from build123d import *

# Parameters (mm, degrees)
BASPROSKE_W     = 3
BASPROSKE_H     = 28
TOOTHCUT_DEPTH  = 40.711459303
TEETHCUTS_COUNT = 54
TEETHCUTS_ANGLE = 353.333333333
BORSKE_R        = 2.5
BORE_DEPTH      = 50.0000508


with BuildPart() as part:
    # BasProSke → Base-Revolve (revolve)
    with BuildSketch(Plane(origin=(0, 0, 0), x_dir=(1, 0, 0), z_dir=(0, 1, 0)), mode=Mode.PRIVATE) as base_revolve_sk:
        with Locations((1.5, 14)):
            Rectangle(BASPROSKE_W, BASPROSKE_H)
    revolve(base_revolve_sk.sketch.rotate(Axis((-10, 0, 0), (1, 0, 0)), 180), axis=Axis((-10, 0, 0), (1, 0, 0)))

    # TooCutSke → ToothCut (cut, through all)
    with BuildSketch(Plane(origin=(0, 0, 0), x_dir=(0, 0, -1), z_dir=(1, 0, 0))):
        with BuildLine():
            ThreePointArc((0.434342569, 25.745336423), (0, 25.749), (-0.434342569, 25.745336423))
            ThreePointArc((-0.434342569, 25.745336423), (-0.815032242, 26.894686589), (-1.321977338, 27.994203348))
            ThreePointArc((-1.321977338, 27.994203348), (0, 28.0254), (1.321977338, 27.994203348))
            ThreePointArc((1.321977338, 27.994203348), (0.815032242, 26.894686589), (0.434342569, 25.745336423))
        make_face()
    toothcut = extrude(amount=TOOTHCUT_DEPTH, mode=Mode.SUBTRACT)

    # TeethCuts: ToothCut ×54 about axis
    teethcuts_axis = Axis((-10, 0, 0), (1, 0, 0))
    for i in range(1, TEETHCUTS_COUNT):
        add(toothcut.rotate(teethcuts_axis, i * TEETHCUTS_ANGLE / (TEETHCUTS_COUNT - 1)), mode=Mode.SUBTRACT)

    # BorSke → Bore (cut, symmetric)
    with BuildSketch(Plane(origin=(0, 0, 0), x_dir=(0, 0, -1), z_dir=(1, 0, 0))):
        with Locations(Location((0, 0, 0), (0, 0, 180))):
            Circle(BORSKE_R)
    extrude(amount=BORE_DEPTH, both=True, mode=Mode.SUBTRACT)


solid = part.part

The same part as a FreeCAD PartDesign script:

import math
import FreeCAD as App
import Part
import Sketcher

V = App.Vector
Q = App.Units.Quantity

doc = App.newDocument("Part")
body = doc.addObject("PartDesign::Body", "Body")

# Sketch on XZ plane
sketch1 = body.newObject("Sketcher::SketchObject", "Sketch")
sketch1.AttachmentSupport = (doc.getObject("XZ_Plane"), [""])
sketch1.MapMode = "FlatFace"
sketch1.addGeometry([
    Part.LineSegment(V(0, -28, 0), V(0, 0, 0)),
    Part.LineSegment(V(0, 0, 0), V(3, 0, 0)),
    Part.LineSegment(V(3, 0, 0), V(3, -28, 0)),
    Part.LineSegment(V(3, -28, 0), V(0, -28, 0)),
], False)
sketch1.addConstraint([
    Sketcher.Constraint("Coincident", 0, 2, 1, 1),
    Sketcher.Constraint("Coincident", 1, 2, 2, 1),
    Sketcher.Constraint("Coincident", 2, 2, 3, 1),
    Sketcher.Constraint("Coincident", 3, 2, 0, 1),
    Sketcher.Constraint("Vertical", 0),
    Sketcher.Constraint("Horizontal", 1),
    Sketcher.Constraint("Vertical", 2),
    Sketcher.Constraint("Horizontal", 3),
    Sketcher.Constraint("Coincident", 0, 2, -1, 1),
    Sketcher.Constraint("DistanceX", 1, 1, 1, 2, Q("3 mm")),
    Sketcher.Constraint("DistanceY", 0, 1, 0, 2, Q("28 mm")),
])
revolution = body.newObject("PartDesign::Revolution", "Revolution")
revolution.Profile = sketch1
revolution.ReferenceAxis = (sketch1, ["H_Axis"])
revolution.Angle = 360

# Sketch on YZ plane
sketch2 = body.newObject("Sketcher::SketchObject", "Sketch001")
sketch2.AttachmentSupport = (doc.getObject("YZ_Plane"), [""])
sketch2.MapMode = "FlatFace"
sketch2.addGeometry([
    Part.ArcOfCircle(Part.Circle(V(0, 0, 0), V(0, 0, 1), 25.7), math.radians(-0.97), math.radians(0.97)),
    Part.ArcOfCircle(Part.Circle(V(22.9, -10.9, 0), V(0, 0, 1), 10.8), math.radians(62.03), math.radians(74.89)),
    Part.ArcOfCircle(Part.Circle(V(0, 0, 0), V(0, 0, 1), 28), math.radians(-2.7), math.radians(2.7)),
    Part.ArcOfCircle(Part.Circle(V(22.9, 10.9, 0), V(0, 0, 1), 10.8), math.radians(-74.89), math.radians(-62.03)),
], False)
sketch2.addConstraint([
    Sketcher.Constraint("Coincident", 0, 1, 1, 2),
    Sketcher.Constraint("Coincident", 1, 1, 2, 1),
    Sketcher.Constraint("Coincident", 2, 2, 3, 2),
    Sketcher.Constraint("Coincident", 3, 1, 0, 2),
    Sketcher.Constraint("Coincident", 0, 3, -1, 1),
    Sketcher.Constraint("Coincident", 2, 3, -1, 1),
    Sketcher.Constraint("Equal", 1, 3),
    Sketcher.Constraint("Symmetric", 1, 3, 3, 3, -1),
    Sketcher.Constraint("Radius", 1, Q("10.8 mm")),
    Sketcher.Constraint("Radius", 0, Q("25.749 mm")),
    Sketcher.Constraint("Radius", 2, Q("28.0254 mm")),
    Sketcher.Constraint("DistanceY", 1, 1, 3, 3, Q("12.182802 mm")),
    Sketcher.Constraint("DistanceX", -1, 1, 1, 3, Q("22.929581 mm")),
])
pocket1 = body.newObject("PartDesign::Pocket", "Pocket")
pocket1.Profile = sketch2
pocket1.Type = "ThroughAll"
pocket1.Reversed = True
doc.recompute()

polarpattern = body.newObject("PartDesign::PolarPattern", "PolarPattern")
polarpattern.Originals = [pocket1]
polarpattern.Axis = (doc.getObject("X_Axis"), [""])
polarpattern.Angle = 360
polarpattern.Occurrences = 54
body.Tip = polarpattern

# Sketch on YZ plane
sketch3 = body.newObject("Sketcher::SketchObject", "Sketch002")
sketch3.AttachmentSupport = (doc.getObject("YZ_Plane"), [""])
sketch3.MapMode = "FlatFace"
sketch3.addGeometry(Part.Circle(V(0, 0, 0), V(0, 0, 1), 2.5), False)
sketch3.addConstraint([
    Sketcher.Constraint("Coincident", 0, 3, -1, 1),
    Sketcher.Constraint("Diameter", 0, Q("5 mm")),
])
pocket2 = body.newObject("PartDesign::Pocket", "Pocket001")
pocket2.Profile = sketch3
pocket2.Length = 100.000102
pocket2.Midplane = True

doc.recompute()
